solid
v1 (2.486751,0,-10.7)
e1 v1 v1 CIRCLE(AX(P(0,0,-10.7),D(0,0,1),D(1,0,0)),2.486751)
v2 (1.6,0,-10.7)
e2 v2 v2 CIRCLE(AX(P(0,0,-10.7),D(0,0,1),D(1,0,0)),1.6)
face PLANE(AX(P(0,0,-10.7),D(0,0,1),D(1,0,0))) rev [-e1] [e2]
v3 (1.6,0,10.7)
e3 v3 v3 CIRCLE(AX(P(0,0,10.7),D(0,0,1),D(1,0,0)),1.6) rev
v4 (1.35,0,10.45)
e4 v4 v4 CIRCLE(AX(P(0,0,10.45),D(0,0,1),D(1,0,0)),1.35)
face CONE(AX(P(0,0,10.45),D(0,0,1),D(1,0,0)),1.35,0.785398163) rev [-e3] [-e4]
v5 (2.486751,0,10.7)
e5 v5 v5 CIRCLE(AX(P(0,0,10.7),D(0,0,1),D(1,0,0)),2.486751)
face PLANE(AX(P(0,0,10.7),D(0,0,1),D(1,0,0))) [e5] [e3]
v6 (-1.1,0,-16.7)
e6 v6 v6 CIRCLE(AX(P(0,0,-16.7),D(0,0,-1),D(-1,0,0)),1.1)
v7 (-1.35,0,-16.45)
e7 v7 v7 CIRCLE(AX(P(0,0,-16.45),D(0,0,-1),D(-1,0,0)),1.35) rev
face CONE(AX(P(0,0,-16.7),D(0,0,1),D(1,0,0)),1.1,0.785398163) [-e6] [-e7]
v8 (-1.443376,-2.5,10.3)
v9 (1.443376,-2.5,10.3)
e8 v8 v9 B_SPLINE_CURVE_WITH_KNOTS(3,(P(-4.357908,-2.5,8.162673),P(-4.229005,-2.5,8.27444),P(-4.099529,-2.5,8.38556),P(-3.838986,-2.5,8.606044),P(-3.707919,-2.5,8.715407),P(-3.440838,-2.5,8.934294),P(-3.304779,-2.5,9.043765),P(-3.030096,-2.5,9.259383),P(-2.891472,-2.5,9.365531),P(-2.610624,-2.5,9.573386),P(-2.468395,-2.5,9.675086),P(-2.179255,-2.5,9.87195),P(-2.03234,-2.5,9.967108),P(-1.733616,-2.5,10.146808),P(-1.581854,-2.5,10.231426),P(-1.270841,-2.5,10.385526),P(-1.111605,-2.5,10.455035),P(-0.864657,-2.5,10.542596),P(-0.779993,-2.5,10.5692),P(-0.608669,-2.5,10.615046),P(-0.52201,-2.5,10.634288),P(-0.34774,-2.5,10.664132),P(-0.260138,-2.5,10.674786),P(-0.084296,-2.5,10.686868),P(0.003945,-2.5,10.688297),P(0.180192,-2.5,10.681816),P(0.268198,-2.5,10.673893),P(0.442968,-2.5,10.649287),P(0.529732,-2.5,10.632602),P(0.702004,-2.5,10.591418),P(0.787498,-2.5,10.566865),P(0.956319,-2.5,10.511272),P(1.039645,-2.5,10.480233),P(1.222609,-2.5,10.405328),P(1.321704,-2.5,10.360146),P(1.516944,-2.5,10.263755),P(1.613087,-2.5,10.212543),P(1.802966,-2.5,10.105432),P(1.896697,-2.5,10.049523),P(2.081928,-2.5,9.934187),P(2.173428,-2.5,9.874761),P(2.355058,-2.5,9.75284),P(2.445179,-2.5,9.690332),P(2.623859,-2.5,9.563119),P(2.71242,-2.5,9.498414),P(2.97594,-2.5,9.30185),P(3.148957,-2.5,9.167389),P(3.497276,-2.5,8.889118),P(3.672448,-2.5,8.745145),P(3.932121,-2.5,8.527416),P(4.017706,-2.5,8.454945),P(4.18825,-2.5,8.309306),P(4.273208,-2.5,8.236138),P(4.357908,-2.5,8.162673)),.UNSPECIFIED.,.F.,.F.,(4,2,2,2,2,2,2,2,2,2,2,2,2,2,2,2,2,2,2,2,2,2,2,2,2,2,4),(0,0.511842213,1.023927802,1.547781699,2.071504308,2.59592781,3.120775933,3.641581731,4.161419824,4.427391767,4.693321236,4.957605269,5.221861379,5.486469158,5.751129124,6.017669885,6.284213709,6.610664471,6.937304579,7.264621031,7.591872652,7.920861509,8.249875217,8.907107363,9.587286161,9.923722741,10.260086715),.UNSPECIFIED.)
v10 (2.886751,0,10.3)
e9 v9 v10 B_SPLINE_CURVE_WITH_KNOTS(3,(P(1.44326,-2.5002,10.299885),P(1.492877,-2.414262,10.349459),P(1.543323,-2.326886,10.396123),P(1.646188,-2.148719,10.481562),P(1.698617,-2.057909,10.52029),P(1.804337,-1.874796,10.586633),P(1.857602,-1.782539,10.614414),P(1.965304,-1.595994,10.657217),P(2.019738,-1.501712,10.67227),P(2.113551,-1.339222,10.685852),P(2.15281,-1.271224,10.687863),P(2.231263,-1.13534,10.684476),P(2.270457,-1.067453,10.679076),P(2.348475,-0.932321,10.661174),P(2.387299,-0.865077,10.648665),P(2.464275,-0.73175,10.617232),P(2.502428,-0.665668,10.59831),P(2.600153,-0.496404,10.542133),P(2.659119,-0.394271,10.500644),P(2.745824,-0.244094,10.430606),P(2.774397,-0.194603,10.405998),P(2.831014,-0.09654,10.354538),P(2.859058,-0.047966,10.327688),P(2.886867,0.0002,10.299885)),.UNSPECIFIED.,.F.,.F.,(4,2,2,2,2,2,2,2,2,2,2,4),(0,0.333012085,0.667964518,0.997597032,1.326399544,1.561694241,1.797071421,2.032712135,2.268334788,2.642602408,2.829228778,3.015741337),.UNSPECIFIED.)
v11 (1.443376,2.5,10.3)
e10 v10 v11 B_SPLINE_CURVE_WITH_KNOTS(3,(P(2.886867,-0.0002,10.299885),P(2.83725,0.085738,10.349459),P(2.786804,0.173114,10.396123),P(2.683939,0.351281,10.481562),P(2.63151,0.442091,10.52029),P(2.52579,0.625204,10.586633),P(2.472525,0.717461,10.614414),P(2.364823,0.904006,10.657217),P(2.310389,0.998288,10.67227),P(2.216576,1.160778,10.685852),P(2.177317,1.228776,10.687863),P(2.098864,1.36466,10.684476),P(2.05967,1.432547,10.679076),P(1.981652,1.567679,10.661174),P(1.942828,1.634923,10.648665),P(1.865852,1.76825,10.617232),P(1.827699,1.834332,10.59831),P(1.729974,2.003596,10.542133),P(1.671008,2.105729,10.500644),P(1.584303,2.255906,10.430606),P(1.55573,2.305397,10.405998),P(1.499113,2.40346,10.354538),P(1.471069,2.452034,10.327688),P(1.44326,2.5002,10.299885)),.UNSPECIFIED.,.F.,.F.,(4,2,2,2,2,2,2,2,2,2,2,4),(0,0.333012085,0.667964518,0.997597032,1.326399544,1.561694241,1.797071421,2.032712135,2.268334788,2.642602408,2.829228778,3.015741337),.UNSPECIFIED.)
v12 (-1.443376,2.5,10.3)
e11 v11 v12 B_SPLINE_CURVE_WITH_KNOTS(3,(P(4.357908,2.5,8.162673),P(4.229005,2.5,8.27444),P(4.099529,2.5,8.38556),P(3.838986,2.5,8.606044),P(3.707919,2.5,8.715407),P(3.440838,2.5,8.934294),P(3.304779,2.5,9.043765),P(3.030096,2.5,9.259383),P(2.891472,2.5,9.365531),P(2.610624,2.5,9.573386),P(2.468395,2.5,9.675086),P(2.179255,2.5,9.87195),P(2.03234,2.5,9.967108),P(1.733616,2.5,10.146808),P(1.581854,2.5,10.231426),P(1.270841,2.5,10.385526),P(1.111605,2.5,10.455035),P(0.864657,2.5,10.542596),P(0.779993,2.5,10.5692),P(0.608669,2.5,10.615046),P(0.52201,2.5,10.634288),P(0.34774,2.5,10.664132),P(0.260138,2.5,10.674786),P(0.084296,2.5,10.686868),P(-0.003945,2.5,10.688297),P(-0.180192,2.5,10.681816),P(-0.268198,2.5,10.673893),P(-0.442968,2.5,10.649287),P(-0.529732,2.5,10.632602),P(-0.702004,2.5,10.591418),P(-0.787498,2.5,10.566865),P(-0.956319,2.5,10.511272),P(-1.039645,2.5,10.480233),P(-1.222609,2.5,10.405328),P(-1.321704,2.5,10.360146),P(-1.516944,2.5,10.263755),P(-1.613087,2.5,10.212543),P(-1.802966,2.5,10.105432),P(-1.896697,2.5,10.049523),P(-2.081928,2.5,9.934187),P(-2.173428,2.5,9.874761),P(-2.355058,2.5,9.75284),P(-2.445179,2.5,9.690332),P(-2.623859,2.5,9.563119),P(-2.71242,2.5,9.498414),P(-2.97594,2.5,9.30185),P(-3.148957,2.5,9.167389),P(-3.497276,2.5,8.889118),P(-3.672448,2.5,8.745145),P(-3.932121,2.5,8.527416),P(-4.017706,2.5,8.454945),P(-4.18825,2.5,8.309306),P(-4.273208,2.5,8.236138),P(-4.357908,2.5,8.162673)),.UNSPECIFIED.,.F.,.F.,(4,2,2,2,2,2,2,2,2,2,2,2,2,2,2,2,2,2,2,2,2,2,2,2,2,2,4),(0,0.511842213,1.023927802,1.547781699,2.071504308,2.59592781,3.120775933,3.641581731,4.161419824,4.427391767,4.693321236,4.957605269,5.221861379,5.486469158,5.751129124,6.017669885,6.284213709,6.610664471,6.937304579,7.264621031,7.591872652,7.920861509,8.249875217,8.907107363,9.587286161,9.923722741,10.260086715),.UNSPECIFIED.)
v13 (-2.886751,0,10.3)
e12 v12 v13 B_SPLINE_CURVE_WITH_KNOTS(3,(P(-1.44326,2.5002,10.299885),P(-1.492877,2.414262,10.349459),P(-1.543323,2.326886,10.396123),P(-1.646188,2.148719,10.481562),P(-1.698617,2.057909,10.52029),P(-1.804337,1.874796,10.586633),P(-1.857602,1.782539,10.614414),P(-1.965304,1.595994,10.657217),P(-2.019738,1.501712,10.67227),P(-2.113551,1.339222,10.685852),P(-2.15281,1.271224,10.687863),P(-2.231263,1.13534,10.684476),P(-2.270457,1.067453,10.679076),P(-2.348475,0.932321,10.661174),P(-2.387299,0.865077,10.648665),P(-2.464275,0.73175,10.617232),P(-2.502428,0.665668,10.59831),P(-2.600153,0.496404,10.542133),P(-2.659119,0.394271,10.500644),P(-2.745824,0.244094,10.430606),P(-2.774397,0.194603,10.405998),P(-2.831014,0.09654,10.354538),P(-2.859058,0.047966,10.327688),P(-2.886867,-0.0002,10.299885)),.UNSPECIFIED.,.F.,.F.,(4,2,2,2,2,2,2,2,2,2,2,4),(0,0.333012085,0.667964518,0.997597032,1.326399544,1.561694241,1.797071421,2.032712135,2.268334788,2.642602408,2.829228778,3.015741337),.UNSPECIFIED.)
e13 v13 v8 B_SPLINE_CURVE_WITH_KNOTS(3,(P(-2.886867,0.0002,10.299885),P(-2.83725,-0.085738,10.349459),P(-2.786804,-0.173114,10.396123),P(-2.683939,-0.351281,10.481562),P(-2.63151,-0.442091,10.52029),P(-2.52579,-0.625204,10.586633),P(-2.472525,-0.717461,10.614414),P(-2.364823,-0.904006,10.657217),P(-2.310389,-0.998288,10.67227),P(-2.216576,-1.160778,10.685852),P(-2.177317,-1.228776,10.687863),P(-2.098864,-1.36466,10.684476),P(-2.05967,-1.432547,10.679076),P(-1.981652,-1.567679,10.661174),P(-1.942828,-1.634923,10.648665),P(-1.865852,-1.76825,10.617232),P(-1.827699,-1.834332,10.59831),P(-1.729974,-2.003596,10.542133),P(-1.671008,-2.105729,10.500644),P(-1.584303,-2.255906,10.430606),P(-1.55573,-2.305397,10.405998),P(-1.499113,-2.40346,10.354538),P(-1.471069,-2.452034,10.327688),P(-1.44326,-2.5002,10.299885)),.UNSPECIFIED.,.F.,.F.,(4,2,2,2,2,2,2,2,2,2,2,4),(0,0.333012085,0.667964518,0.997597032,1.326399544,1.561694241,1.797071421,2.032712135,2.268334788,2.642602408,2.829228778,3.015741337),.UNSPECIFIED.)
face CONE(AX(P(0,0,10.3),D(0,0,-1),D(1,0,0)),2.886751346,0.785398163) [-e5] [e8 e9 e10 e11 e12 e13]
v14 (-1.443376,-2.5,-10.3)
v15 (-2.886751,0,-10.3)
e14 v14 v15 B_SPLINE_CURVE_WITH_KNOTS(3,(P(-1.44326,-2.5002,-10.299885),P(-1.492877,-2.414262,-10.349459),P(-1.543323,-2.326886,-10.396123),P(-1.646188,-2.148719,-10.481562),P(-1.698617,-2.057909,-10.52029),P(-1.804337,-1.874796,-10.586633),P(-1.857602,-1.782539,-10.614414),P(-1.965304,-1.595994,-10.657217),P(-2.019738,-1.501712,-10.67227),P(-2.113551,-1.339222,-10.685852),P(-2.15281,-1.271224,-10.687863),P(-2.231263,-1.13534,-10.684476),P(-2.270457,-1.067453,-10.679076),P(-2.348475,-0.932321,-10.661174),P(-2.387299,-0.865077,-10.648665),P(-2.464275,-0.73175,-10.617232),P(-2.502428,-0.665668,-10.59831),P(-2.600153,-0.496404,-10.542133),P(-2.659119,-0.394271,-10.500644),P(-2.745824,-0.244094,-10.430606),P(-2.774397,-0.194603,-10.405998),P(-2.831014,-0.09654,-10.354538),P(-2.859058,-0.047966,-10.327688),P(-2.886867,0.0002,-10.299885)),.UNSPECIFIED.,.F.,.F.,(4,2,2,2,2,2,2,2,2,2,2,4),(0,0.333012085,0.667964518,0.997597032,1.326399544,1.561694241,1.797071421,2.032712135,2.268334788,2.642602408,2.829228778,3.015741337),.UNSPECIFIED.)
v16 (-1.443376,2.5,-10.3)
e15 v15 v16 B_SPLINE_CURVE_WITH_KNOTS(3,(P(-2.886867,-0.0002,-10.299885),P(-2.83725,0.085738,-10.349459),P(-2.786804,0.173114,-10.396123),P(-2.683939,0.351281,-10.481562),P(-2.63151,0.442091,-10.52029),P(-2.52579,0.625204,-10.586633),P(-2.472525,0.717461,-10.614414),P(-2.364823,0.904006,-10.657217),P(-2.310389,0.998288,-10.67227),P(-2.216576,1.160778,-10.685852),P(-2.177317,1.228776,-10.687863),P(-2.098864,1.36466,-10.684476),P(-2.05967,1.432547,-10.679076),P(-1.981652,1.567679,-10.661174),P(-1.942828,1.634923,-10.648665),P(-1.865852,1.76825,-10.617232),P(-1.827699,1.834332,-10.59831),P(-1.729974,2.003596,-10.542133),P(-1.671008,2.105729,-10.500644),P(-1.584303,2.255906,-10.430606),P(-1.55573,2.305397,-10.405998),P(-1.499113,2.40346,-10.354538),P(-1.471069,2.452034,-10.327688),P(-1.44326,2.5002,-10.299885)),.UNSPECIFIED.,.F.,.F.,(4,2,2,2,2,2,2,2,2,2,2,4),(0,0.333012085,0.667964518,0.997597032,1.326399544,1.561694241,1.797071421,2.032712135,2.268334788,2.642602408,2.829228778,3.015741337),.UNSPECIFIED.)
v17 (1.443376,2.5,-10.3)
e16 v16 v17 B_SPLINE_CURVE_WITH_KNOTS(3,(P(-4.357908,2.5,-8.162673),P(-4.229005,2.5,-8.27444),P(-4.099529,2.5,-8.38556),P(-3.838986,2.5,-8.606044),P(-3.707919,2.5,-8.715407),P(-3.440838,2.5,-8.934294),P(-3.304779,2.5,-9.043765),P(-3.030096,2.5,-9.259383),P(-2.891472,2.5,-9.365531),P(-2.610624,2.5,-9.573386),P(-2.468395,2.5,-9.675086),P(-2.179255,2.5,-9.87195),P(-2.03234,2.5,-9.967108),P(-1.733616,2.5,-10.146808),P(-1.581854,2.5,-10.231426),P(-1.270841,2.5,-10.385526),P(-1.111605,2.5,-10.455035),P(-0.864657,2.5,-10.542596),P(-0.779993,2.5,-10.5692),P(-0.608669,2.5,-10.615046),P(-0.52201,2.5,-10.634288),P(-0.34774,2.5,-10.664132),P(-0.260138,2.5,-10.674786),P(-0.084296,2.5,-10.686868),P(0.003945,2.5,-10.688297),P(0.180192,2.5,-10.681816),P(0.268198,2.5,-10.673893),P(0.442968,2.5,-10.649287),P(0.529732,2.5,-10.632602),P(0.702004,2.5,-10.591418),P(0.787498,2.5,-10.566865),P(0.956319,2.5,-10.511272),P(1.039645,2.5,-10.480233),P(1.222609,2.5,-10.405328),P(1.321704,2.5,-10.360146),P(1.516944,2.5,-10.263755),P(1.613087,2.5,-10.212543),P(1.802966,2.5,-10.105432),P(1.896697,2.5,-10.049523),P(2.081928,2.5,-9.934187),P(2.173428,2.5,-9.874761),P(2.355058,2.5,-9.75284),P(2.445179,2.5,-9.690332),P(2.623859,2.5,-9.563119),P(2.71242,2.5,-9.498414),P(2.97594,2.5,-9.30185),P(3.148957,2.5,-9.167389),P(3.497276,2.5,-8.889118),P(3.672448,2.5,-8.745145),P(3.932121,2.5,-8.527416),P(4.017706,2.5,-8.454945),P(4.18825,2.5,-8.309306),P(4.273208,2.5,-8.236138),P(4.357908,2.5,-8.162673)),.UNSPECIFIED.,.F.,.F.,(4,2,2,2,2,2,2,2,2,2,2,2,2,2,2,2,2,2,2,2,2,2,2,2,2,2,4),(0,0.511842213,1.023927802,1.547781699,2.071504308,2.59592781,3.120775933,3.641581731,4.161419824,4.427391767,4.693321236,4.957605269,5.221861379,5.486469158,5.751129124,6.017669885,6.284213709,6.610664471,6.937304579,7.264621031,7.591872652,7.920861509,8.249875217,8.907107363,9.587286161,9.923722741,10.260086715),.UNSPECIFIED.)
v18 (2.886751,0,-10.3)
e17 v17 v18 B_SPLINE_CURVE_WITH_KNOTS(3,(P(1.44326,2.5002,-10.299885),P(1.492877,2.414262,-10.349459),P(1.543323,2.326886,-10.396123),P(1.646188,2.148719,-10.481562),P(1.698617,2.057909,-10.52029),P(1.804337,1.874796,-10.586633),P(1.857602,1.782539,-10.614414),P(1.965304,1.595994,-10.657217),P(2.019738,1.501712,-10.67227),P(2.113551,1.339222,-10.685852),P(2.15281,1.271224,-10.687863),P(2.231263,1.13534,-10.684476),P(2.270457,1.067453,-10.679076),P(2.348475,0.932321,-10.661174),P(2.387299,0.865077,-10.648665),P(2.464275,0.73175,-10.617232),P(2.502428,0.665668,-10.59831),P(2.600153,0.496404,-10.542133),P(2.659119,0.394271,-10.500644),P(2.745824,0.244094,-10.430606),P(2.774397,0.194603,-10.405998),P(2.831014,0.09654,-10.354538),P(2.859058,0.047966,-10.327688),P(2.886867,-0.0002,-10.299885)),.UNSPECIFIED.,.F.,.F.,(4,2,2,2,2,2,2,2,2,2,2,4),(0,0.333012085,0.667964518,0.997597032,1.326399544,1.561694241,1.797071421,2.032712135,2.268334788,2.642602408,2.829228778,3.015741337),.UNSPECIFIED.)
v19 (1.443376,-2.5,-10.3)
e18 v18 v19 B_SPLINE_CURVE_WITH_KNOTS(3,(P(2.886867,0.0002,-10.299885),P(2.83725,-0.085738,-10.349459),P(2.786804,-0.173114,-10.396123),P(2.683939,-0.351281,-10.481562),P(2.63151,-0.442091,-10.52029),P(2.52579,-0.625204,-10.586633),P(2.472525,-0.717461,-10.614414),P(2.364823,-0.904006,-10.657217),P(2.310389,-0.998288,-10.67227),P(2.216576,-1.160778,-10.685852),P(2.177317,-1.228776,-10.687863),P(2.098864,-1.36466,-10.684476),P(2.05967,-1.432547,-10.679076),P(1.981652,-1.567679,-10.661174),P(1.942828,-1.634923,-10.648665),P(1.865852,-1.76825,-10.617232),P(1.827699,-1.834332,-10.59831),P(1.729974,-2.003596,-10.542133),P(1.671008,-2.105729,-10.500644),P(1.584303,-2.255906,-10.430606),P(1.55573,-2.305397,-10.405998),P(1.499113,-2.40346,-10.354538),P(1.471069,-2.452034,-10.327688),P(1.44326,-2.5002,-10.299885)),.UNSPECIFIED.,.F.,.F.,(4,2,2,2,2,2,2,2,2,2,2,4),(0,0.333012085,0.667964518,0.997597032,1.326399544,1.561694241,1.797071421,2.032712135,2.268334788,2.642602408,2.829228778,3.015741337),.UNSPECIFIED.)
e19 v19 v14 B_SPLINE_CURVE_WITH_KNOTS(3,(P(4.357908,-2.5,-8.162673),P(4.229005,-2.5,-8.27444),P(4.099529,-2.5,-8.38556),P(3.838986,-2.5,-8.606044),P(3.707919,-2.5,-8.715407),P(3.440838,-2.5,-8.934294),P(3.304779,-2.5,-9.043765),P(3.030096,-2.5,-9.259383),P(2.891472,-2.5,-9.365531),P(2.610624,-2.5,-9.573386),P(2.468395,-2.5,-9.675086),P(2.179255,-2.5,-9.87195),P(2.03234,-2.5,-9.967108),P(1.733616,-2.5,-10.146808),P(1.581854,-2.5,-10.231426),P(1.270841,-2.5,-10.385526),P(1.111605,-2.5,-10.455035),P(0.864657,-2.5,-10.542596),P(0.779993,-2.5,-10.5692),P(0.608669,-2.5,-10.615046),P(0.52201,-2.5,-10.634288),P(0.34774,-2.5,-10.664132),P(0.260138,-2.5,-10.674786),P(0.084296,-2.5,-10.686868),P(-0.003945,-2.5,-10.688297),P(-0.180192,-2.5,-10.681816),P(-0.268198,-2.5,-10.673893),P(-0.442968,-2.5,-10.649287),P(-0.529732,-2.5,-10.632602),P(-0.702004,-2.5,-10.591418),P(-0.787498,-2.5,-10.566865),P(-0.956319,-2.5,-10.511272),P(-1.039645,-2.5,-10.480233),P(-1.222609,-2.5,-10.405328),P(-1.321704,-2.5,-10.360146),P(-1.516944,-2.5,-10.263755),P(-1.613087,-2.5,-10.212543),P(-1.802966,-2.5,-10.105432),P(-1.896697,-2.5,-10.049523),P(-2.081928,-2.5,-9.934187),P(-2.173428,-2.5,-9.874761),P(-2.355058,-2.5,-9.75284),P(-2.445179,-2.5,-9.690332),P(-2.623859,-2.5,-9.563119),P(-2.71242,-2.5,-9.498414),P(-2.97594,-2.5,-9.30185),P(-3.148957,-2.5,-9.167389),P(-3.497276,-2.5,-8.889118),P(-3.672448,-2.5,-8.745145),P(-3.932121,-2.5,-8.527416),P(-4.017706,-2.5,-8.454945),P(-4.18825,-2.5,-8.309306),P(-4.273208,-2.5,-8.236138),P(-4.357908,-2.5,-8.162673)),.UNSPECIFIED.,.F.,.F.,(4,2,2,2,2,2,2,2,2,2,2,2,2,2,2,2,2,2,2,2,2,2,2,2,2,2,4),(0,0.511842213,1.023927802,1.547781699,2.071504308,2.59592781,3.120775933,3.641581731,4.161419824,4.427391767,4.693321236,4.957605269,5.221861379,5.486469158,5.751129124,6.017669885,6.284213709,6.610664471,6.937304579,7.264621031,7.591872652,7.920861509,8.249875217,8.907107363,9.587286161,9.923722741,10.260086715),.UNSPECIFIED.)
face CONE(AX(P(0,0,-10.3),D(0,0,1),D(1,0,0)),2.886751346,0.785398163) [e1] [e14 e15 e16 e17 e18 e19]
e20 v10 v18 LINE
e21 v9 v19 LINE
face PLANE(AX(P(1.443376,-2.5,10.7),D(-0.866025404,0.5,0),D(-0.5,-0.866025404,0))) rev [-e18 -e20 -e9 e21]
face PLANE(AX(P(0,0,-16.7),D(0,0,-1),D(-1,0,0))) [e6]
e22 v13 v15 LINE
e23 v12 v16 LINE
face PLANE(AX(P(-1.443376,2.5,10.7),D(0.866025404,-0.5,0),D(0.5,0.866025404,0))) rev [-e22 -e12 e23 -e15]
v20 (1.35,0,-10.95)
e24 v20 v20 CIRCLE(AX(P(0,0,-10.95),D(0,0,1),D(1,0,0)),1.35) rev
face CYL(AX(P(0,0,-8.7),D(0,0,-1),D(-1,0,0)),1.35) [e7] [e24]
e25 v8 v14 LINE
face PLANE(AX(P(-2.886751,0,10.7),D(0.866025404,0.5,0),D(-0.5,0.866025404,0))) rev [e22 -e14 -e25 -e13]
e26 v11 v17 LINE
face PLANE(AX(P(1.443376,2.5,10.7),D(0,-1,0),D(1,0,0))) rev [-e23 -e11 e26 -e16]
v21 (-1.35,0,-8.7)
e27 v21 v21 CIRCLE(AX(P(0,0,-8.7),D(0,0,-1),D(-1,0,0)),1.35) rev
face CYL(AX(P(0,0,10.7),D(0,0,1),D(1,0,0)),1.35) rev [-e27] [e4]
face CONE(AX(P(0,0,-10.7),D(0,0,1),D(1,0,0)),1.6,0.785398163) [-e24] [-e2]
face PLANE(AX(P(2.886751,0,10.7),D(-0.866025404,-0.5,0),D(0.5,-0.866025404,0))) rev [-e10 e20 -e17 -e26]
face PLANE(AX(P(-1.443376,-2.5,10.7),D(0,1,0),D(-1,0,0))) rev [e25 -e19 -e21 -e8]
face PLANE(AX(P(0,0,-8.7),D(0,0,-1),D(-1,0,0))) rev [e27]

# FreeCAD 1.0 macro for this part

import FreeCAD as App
import Part
import Sketcher
Q = App.Units.Quantity


def edges_at(feature, points):
    """Names of the edges that pass closest to the given points."""
    edges = feature.Shape.Edges
    near = lambda p: min(range(len(edges)), key=lambda i: edges[i].distToShape(Part.Vertex(*p))[0])
    return sorted({f"Edge{near(p) + 1}" for p in points})

doc = App.newDocument("Part")
body = doc.addObject("PartDesign::Body", "Body")

# Sketch on XY plane
sketch1 = doc.addObject("Sketcher::SketchObject", "Sketch")
body.addObject(sketch1)
sketch1.AttachmentSupport = (doc.XY_Plane, [""])
sketch1.MapMode = "FlatFace"
sketch1.addGeometry(Part.LineSegment(App.Vector(2.886751, 0, 0), App.Vector(1.443376, 2.5, 0)), False)
sketch1.addGeometry(Part.LineSegment(App.Vector(1.443376, 2.5, 0), App.Vector(-1.443376, 2.5, 0)), False)
sketch1.addGeometry(Part.LineSegment(App.Vector(-1.443376, 2.5, 0), App.Vector(-2.886751, 0, 0)), False)
sketch1.addGeometry(Part.LineSegment(App.Vector(-2.886751, 0, 0), App.Vector(-1.443376, -2.5, 0)), False)
sketch1.addGeometry(Part.LineSegment(App.Vector(-1.443376, -2.5, 0), App.Vector(1.443376, -2.5, 0)), False)
sketch1.addGeometry(Part.LineSegment(App.Vector(1.443376, -2.5, 0), App.Vector(2.886751, 0, 0)), False)
sketch1.addConstraint(Sketcher.Constraint("Coincident", 0, 2, 1, 1))
sketch1.addConstraint(Sketcher.Constraint("Coincident", 1, 2, 2, 1))
sketch1.addConstraint(Sketcher.Constraint("Coincident", 2, 2, 3, 1))
sketch1.addConstraint(Sketcher.Constraint("Coincident", 3, 2, 4, 1))
sketch1.addConstraint(Sketcher.Constraint("Coincident", 4, 2, 5, 1))
sketch1.addConstraint(Sketcher.Constraint("Coincident", 5, 2, 0, 1))
sketch1.addConstraint(Sketcher.Constraint("Horizontal", 1))
sketch1.addConstraint(Sketcher.Constraint("Horizontal", 4))
sketch1.addConstraint(Sketcher.Constraint("Symmetric", 0, 2, 3, 2, -1, 1))
sketch1.addConstraint(Sketcher.Constraint("Symmetric", 2, 2, 5, 2, -1, 1))
sketch1.addConstraint(Sketcher.Constraint("PointOnObject", 2, 2, -1))
sketch1.addConstraint(Sketcher.Constraint("Parallel", 2, 5))
sketch1.addConstraint(Sketcher.Constraint("Vertical", 1, 2, 3, 2))
sketch1.addConstraint(Sketcher.Constraint("Angle", 0, Q("120 deg")))
sketch1.addConstraint(Sketcher.Constraint("DistanceY", 3, 2, 1, 2, 5.0))
sketch1.addConstraint(Sketcher.Constraint("DistanceX", 1, 2, 1, 1, 2.886751))
pad1 = doc.addObject("PartDesign::Pad", "Pad")
body.addObject(pad1)
pad1.Profile = sketch1
pad1.Length = 21.4
pad1.Midplane = True

# Sketch on XY plane
sketch2 = doc.addObject("Sketcher::SketchObject", "Sketch001")
body.addObject(sketch2)
sketch2.AttachmentSupport = (doc.XY_Plane, [""])
sketch2.MapMode = "FlatFace"
sketch2.AttachmentOffset = App.Placement(App.Vector(0, 0, 10.7), App.Rotation())
sketch2.addGeometry(Part.Circle(App.Vector(0, 0, 0), App.Vector(0, 0, 1), 1.35), False)
sketch2.addConstraint(Sketcher.Constraint("Coincident", 0, 3, -1, 1))
sketch2.addConstraint(Sketcher.Constraint("Diameter", 0, 2.7))
doc.recompute()
hole = doc.addObject("PartDesign::Hole", "Hole")
body.addObject(hole)
hole.Profile = sketch2
hole.ThreadType = "None"
hole.Diameter = 2.7
hole.DepthType = "ThroughAll"

# Sketch on XZ plane
sketch3 = doc.addObject("Sketcher::SketchObject", "Sketch002")
body.addObject(sketch3)
sketch3.AttachmentSupport = (doc.XZ_Plane, [""])
sketch3.MapMode = "FlatFace"
sketch3.addGeometry(Part.LineSegment(App.Vector(-2.886751, -10.7, 0), App.Vector(-2.886751, -10.3, 0)), False)
sketch3.addGeometry(Part.LineSegment(App.Vector(-2.886751, -10.3, 0), App.Vector(-2.486751, -10.7, 0)), False)
sketch3.addGeometry(Part.LineSegment(App.Vector(-2.486751, -10.7, 0), App.Vector(-2.886751, -10.7, 0)), False)
sketch3.addConstraint(Sketcher.Constraint("Coincident", 0, 2, 1, 1))
sketch3.addConstraint(Sketcher.Constraint("Coincident", 1, 2, 2, 1))
sketch3.addConstraint(Sketcher.Constraint("Coincident", 2, 2, 0, 1))
sketch3.addConstraint(Sketcher.Constraint("Vertical", 0))
sketch3.addConstraint(Sketcher.Constraint("Horizontal", 2))
sketch3.addConstraint(Sketcher.Constraint("Equal", 2, 0))
sketch3.addConstraint(Sketcher.Constraint("DistanceX", 2, 2, 2, 1, 0.4))
sketch3.addConstraint(Sketcher.Constraint("DistanceY", 0, 2, -1, 1, 10.3))
sketch3.addConstraint(Sketcher.Constraint("DistanceX", 0, 2, -1, 1, 2.886751))
groove = doc.addObject("PartDesign::Groove", "Groove")
body.addObject(groove)
groove.Profile = sketch3
groove.ReferenceAxis = (sketch3, ["V_Axis"])
groove.Angle = 360
doc.recompute()

mirrored = doc.addObject("PartDesign::Mirrored", "Mirrored")
body.addObject(mirrored)
mirrored.Originals = [groove]
mirrored.MirrorPlane = (doc.XY_Plane, [""])
body.Tip = mirrored

# Sketch on XY plane
sketch4 = doc.addObject("Sketcher::SketchObject", "Sketch003")
body.addObject(sketch4)
sketch4.AttachmentSupport = (doc.XY_Plane, [""])
sketch4.MapMode = "FlatFace"
sketch4.AttachmentOffset = App.Placement(App.Vector(0, 0, -10.7), App.Rotation())
sketch4.addGeometry(Part.Circle(App.Vector(0, 0, 0), App.Vector(0, 0, 1), 1.35), False)
sketch4.addConstraint(Sketcher.Constraint("Coincident", 0, 3, -1, 1))
sketch4.addConstraint(Sketcher.Constraint("Diameter", 0, 2.7))
pad2 = doc.addObject("PartDesign::Pad", "Pad001")
body.addObject(pad2)
pad2.Profile = sketch4
pad2.Type = "TwoLengths"
pad2.Length = 6
pad2.Length2 = 2
pad2.Reversed = True
doc.recompute()

chamfer = doc.addObject("PartDesign::Chamfer", "Chamfer")
body.addObject(chamfer)
chamfer.Base = (pad2, edges_at(pad2, [(1.35, 0, 10.7), (-1.35, 0, -10.7), (-1.35, 0, -16.7)]))
chamfer.Size = 0.25

doc.recompute()
